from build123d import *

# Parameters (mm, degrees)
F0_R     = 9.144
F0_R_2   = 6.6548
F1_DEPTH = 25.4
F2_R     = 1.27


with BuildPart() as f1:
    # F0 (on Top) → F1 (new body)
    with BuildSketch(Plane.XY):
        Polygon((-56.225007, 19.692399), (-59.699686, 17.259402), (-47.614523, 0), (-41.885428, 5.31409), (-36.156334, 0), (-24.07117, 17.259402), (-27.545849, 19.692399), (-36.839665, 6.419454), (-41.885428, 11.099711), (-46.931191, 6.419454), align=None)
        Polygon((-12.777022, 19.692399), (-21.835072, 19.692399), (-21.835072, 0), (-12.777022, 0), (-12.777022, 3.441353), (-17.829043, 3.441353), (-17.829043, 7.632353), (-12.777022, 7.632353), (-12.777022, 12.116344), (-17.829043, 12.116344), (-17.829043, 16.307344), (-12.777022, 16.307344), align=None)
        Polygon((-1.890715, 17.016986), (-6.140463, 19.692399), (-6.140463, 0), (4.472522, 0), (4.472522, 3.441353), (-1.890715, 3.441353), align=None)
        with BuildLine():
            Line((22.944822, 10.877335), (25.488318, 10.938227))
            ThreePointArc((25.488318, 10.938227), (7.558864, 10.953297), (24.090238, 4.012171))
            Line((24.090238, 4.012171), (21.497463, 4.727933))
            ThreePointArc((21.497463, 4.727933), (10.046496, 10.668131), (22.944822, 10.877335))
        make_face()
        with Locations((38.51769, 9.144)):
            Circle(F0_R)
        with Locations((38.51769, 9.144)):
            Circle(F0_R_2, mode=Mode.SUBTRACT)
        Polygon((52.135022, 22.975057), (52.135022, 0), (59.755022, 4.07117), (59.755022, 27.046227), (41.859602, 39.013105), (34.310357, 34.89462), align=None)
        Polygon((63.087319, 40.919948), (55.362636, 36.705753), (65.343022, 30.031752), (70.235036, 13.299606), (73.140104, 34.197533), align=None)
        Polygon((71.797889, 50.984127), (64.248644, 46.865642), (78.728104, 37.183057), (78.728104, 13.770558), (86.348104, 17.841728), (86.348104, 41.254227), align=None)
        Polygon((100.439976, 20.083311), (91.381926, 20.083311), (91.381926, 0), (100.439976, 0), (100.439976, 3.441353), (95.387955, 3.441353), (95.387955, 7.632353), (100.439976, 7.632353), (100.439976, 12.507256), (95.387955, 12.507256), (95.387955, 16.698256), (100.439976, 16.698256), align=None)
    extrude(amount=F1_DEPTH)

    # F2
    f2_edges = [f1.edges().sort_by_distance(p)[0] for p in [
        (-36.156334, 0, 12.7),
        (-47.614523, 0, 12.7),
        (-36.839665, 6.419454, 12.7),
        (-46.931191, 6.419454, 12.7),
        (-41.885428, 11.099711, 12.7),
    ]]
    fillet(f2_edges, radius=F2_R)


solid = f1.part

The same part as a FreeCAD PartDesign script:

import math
import FreeCAD as App
import Part
import Sketcher

V = App.Vector
Q = App.Units.Quantity


def edges_at(feature, points):
    """Names of the edges that pass closest to the given points."""
    edges = feature.Shape.Edges
    near = lambda p: min(range(len(edges)), key=lambda i: edges[i].distToShape(Part.Vertex(*p))[0])
    return sorted({f"Edge{near(p) + 1}" for p in points})


def add_polygon(sketch, points):
    """Adds a closed chain of lines whose ends are joined by coincident constraints."""
    first, n = sketch.GeometryCount, len(points)
    for a, b in zip(points, points[1:] + points[:1]):
        sketch.addGeometry(Part.LineSegment(App.Vector(*a, 0), App.Vector(*b, 0)), False)
    for i in range(n):
        sketch.addConstraint(Sketcher.Constraint("Coincident", first + i, 2, first + (i + 1) % n, 1))

doc = App.newDocument("Part")
body = doc.addObject("PartDesign::Body", "Body")
body.AllowCompound = True

sketch1 = doc.addObject("Sketcher::SketchObject", "Sketch")
body.addObject(sketch1)
sketch1.AttachmentSupport = (doc.XY_Plane, [""])
sketch1.MapMode = "FlatFace"
add_polygon(sketch1, [(-56.2, 19.7), (-59.7, 17.3), (-47.6, 0), (-41.9, 5.3), (-36.2, 0), (-24.1, 17.3), (-27.5, 19.7), (-36.8, 6.4), (-41.9, 11.1), (-46.9, 6.4)])
add_polygon(sketch1, [(-12.8, 19.7), (-21.8, 19.7), (-21.8, 0), (-12.8, 0), (-12.8, 3.4), (-17.8, 3.4), (-17.8, 7.6), (-12.8, 7.6), (-12.8, 12.1), (-17.8, 12.1), (-17.8, 16.3), (-12.8, 16.3)])
add_polygon(sketch1, [(-1.9, 17), (-6.1, 19.7), (-6.1, 0), (4.5, 0), (4.5, 3.4), (-1.9, 3.4)])
sketch1.addGeometry(Part.LineSegment(V(22.9, 10.9, 0), V(25.5, 10.9, 0)), False)
sketch1.addGeometry(Part.ArcOfCircle(Part.Circle(V(16.5, 9.1, 0), V(0, 0, 1), 9.1), math.radians(11), math.radians(326)), False)
sketch1.addGeometry(Part.LineSegment(V(24.1, 4, 0), V(21.5, 4.7, 0)), False)
sketch1.addGeometry(Part.ArcOfCircle(Part.Circle(V(16.5, 9.1, 0), V(0, 0, 1), 6.7), math.radians(15), math.radians(318)), False)
sketch1.addGeometry(Part.Circle(V(38.5, 9.1, 0), V(0, 0, 1), 9.1), False)
sketch1.addGeometry(Part.Circle(V(38.5, 9.1, 0), V(0, 0, 1), 6.7), False)
add_polygon(sketch1, [(52.1, 23), (52.1, 0), (59.8, 4.1), (59.8, 27), (41.9, 39), (34.3, 34.9)])
add_polygon(sketch1, [(63.1, 40.9), (55.4, 36.7), (65.3, 30), (70.2, 13.3), (73.1, 34.2)])
add_polygon(sketch1, [(71.8, 51), (64.2, 46.9), (78.7, 37.2), (78.7, 13.8), (86.3, 17.8), (86.3, 41.3)])
add_polygon(sketch1, [(100.4, 20.1), (91.4, 20.1), (91.4, 0), (100.4, 0), (100.4, 3.4), (95.4, 3.4), (95.4, 7.6), (100.4, 7.6), (100.4, 12.5), (95.4, 12.5), (95.4, 16.7), (100.4, 16.7)])
sketch1.addConstraint(Sketcher.Constraint("Coincident", 28, 2, 29, 1))
sketch1.addConstraint(Sketcher.Constraint("Coincident", 29, 2, 30, 1))
sketch1.addConstraint(Sketcher.Constraint("Coincident", 30, 2, 31, 2))
sketch1.addConstraint(Sketcher.Constraint("Coincident", 31, 1, 28, 1))
sketch1.addConstraint(Sketcher.Constraint("Horizontal", 10))
sketch1.addConstraint(Sketcher.Constraint("Vertical", 11))
sketch1.addConstraint(Sketcher.Constraint("Horizontal", 12))
sketch1.addConstraint(Sketcher.Constraint("Vertical", 13))
sketch1.addConstraint(Sketcher.Constraint("Horizontal", 14))
sketch1.addConstraint(Sketcher.Constraint("Vertical", 15))
sketch1.addConstraint(Sketcher.Constraint("Horizontal", 16))
sketch1.addConstraint(Sketcher.Constraint("Vertical", 17))
sketch1.addConstraint(Sketcher.Constraint("Horizontal", 18))
sketch1.addConstraint(Sketcher.Constraint("Vertical", 19))
sketch1.addConstraint(Sketcher.Constraint("Horizontal", 20))
sketch1.addConstraint(Sketcher.Constraint("Vertical", 21))
sketch1.addConstraint(Sketcher.Constraint("Vertical", 23))
sketch1.addConstraint(Sketcher.Constraint("Horizontal", 24))
sketch1.addConstraint(Sketcher.Constraint("Vertical", 25))
sketch1.addConstraint(Sketcher.Constraint("Horizontal", 26))
sketch1.addConstraint(Sketcher.Constraint("Vertical", 27))
sketch1.addConstraint(Sketcher.Constraint("Vertical", 34))
sketch1.addConstraint(Sketcher.Constraint("Vertical", 36))
sketch1.addConstraint(Sketcher.Constraint("Vertical", 47))
sketch1.addConstraint(Sketcher.Constraint("Vertical", 49))
sketch1.addConstraint(Sketcher.Constraint("Horizontal", 51))
sketch1.addConstraint(Sketcher.Constraint("Vertical", 52))
sketch1.addConstraint(Sketcher.Constraint("Horizontal", 53))
sketch1.addConstraint(Sketcher.Constraint("Vertical", 54))
sketch1.addConstraint(Sketcher.Constraint("Horizontal", 55))
sketch1.addConstraint(Sketcher.Constraint("Vertical", 56))
sketch1.addConstraint(Sketcher.Constraint("Horizontal", 57))
sketch1.addConstraint(Sketcher.Constraint("Vertical", 58))
sketch1.addConstraint(Sketcher.Constraint("Horizontal", 59))
sketch1.addConstraint(Sketcher.Constraint("Vertical", 60))
sketch1.addConstraint(Sketcher.Constraint("Horizontal", 61))
sketch1.addConstraint(Sketcher.Constraint("Vertical", 62))
sketch1.addConstraint(Sketcher.Constraint("Coincident", 31, 3, 29, 3))
sketch1.addConstraint(Sketcher.Constraint("Coincident", 33, 3, 32, 3))
sketch1.addConstraint(Sketcher.Constraint("Equal", 29, 32))
sketch1.addConstraint(Sketcher.Constraint("PointOnObject", 1, 2, -1))
sketch1.addConstraint(Sketcher.Constraint("PointOnObject", 3, 2, -1))
sketch1.addConstraint(Sketcher.Constraint("PointOnObject", 11, 2, -1))
sketch1.addConstraint(Sketcher.Constraint("PointOnObject", 23, 2, -1))
sketch1.addConstraint(Sketcher.Constraint("PointOnObject", 34, 2, -1))
sketch1.addConstraint(Sketcher.Constraint("PointOnObject", 52, 2, -1))
sketch1.addConstraint(Sketcher.Constraint("Perpendicular", 0, 1))
sketch1.addConstraint(Sketcher.Constraint("Perpendicular", 4, 5))
sketch1.addConstraint(Sketcher.Constraint("Perpendicular", 5, 6))
sketch1.addConstraint(Sketcher.Constraint("Parallel", 3, 7))
sketch1.addConstraint(Sketcher.Constraint("Parallel", 2, 8))
sketch1.addConstraint(Sketcher.Constraint("Parallel", 1, 9))
sketch1.addConstraint(Sketcher.Constraint("Parallel", 37, 39))
sketch1.addConstraint(Sketcher.Constraint("Parallel", 38, 40))
sketch1.addConstraint(Sketcher.Constraint("Parallel", 39, 41))
sketch1.addConstraint(Sketcher.Constraint("Parallel", 41, 44))
sketch1.addConstraint(Sketcher.Constraint("Parallel", 40, 45))
sketch1.addConstraint(Sketcher.Constraint("Parallel", 44, 46))
sketch1.addConstraint(Sketcher.Constraint("Parallel", 35, 48))
sketch1.addConstraint(Sketcher.Constraint("Parallel", 46, 50))
sketch1.addConstraint(Sketcher.Constraint("Horizontal", 31, 3, 32, 3))
sketch1.addConstraint(Sketcher.Constraint("Horizontal", 0, 2, 4, 2))
sketch1.addConstraint(Sketcher.Constraint("Horizontal", 6, 2, 8, 2))
sketch1.addConstraint(Sketcher.Constraint("Horizontal", 5, 2, 9, 2))
sketch1.addConstraint(Sketcher.Constraint("Horizontal", 9, 2, 10, 2))
sketch1.addConstraint(Sketcher.Constraint("Horizontal", 21, 2, 22, 2))
sketch1.addConstraint(Sketcher.Constraint("Horizontal", 14, 2, 25, 2))
sketch1.addConstraint(Sketcher.Constraint("Horizontal", 26, 2, 54, 2))
sketch1.addConstraint(Sketcher.Constraint("Horizontal", 16, 2, 56, 2))
sketch1.addConstraint(Sketcher.Constraint("Vertical", 2, 2, 7, 2))
sketch1.addConstraint(Sketcher.Constraint("Vertical", 13, 2, 16, 2))
sketch1.addConstraint(Sketcher.Constraint("Vertical", 15, 2, 18, 2))
sketch1.addConstraint(Sketcher.Constraint("Vertical", 17, 2, 20, 2))
sketch1.addConstraint(Sketcher.Constraint("Vertical", 54, 2, 57, 2))
sketch1.addConstraint(Sketcher.Constraint("Vertical", 56, 2, 59, 2))
sketch1.addConstraint(Sketcher.Constraint("Vertical", 58, 2, 61, 2))
sketch1.addConstraint(Sketcher.Constraint("Equal", 12, 51))
sketch1.addConstraint(Sketcher.Constraint("Equal", 20, 55))
sketch1.addConstraint(Sketcher.Constraint("Equal", 15, 19))
sketch1.addConstraint(Sketcher.Constraint("Equal", 34, 36))
sketch1.addConstraint(Sketcher.Constraint("Equal", 47, 49))
sketch1.addConstraint(Sketcher.Constraint("Equal", 56, 60))
sketch1.addConstraint(Sketcher.Constraint("Equal", 21, 62))
sketch1.addConstraint(Sketcher.Constraint("Equal", 2, 3))
sketch1.addConstraint(Sketcher.Constraint("Equal", 38, 45))
sketch1.addConstraint(Sketcher.Constraint("Diameter", 32, Q("0.72 in")))
sketch1.addConstraint(Sketcher.Constraint("Diameter", 33, Q("0.524 in")))
sketch1.addConstraint(Sketcher.Constraint("Angle", 0, Q("-144.999994 deg")))
sketch1.addConstraint(Sketcher.Constraint("DistanceY", 15, 1, 15, 2, Q("0.165 in")))
sketch1.addConstraint(Sketcher.Constraint("DistanceY", -1, 1, 29, 3, Q("0.36 in")))
sketch1.addConstraint(Sketcher.Constraint("Distance", 0, Q("0.167 in")))
sketch1.addConstraint(Sketcher.Constraint("DistanceY", 11, 2, 11, 1, 19.692399))
sketch1.addConstraint(Sketcher.Constraint("DistanceY", 47, 2, 47, 1, 23.412499))
sketch1.addConstraint(Sketcher.Constraint("DistanceY", -1, 1, 46, 2, Q("1.4638999 in")))
sketch1.addConstraint(Sketcher.Constraint("Radius", 31, 6.652527))
sketch1.addConstraint(Sketcher.Constraint("DistanceX", 10, 2, 10, 1, 9.05805))
sketch1.addConstraint(Sketcher.Constraint("DistanceX", 14, 2, 14, 1, 5.052021))
sketch1.addConstraint(Sketcher.Constraint("DistanceY", 17, 1, 17, 2, 4.483991))
sketch1.addConstraint(Sketcher.Constraint("DistanceY", 52, 2, 52, 1, 20.083311))
sketch1.addConstraint(Sketcher.Constraint("Distance", 7, 6.882189))
sketch1.addConstraint(Sketcher.Constraint("Distance", 22, 5.021772))
sketch1.addConstraint(Sketcher.Constraint("Distance", 37, 21.527941))
sketch1.addConstraint(Sketcher.Constraint("Distance", 40, 8.799441))
sketch1.addConstraint(Sketcher.Constraint("Distance", 43, 21.098881))
sketch1.addConstraint(Sketcher.Constraint("Distance", 44, 12.09336))
sketch1.addConstraint(Sketcher.Constraint("Distance", 46, 17.418588))
sketch1.addConstraint(Sketcher.Constraint("DistanceX", 24, 1, 24, 2, 10.612985))
sketch1.addConstraint(Sketcher.Constraint("DistanceX", 26, 2, 26, 1, 6.363237))
sketch1.addConstraint(Sketcher.Constraint("DistanceY", 13, 1, 13, 2, 3.441353))
sketch1.addConstraint(Sketcher.Constraint("DistanceY", 34, 2, 34, 1, 22.975057))
sketch1.addConstraint(Sketcher.Constraint("DistanceX", -1, 1, 32, 3, 38.51769))
sketch1.addConstraint(Sketcher.Constraint("DistanceY", -1, 1, 2, 2, 5.31409))
sketch1.addConstraint(Sketcher.Constraint("DistanceX", 4, 2, -1, 1, 24.07117))
sketch1.addConstraint(Sketcher.Constraint("DistanceY", -1, 1, 7, 2, 11.099711))
sketch1.addConstraint(Sketcher.Constraint("DistanceX", 10, 2, -1, 1, 21.835072))
sketch1.addConstraint(Sketcher.Constraint("DistanceX", -1, 1, 24, 2, 4.472522))
sketch1.addConstraint(Sketcher.Constraint("DistanceY", -1, 1, 29, 2, 4.012171))
sketch1.addConstraint(Sketcher.Constraint("DistanceX", -1, 1, 31, 1, 22.944822))
sketch1.addConstraint(Sketcher.Constraint("DistanceX", -1, 1, 35, 2, 59.755022))
sketch1.addConstraint(Sketcher.Constraint("DistanceY", -1, 1, 35, 2, 4.07117))
sketch1.addConstraint(Sketcher.Constraint("DistanceY", -1, 1, 38, 2, 34.89462))
sketch1.addConstraint(Sketcher.Constraint("DistanceX", -1, 1, 44, 2, 63.087319))
sketch1.addConstraint(Sketcher.Constraint("DistanceX", -1, 1, 50, 2, 71.797889))
sketch1.addConstraint(Sketcher.Constraint("Distance", 28, 2.544225))
sketch1.addConstraint(Sketcher.Constraint("Distance", 30, 2.689758))
sketch1.addConstraint(Sketcher.Constraint("Distance", 35, 8.639376))
sketch1.addConstraint(Sketcher.Constraint("Distance", 38, 8.599594))
sketch1.addConstraint(Sketcher.Constraint("Distance", 41, 12.006265))
sketch1.addConstraint(Sketcher.Constraint("Distance", 42, 17.432628))
sketch1.addConstraint(Sketcher.Constraint("DistanceX", -1, 1, 29, 3, 16.522077))
sketch1.addConstraint(Sketcher.Constraint("DistanceY", -1, 1, 40, 2, 36.705753))
sketch1.addConstraint(Sketcher.Constraint("DistanceX", -1, 1, 51, 2, 91.381926))
pad1 = doc.addObject("PartDesign::Pad", "Pad")
body.addObject(pad1)
pad1.Profile = sketch1
pad1.Length = Q("1 in")
doc.recompute()

fillet = doc.addObject("PartDesign::Fillet", "Fillet")
body.addObject(fillet)
fillet.Base = (pad1, edges_at(pad1, [
    (-36.156, 0, 12.7),
    (-47.615, 0, 12.7),
    (-36.84, 6.419, 12.7),
    (-46.931, 6.419, 12.7),
    (-41.885, 11.1, 12.7),
]))
fillet.Radius = Q("0.05 in")

doc.recompute()
